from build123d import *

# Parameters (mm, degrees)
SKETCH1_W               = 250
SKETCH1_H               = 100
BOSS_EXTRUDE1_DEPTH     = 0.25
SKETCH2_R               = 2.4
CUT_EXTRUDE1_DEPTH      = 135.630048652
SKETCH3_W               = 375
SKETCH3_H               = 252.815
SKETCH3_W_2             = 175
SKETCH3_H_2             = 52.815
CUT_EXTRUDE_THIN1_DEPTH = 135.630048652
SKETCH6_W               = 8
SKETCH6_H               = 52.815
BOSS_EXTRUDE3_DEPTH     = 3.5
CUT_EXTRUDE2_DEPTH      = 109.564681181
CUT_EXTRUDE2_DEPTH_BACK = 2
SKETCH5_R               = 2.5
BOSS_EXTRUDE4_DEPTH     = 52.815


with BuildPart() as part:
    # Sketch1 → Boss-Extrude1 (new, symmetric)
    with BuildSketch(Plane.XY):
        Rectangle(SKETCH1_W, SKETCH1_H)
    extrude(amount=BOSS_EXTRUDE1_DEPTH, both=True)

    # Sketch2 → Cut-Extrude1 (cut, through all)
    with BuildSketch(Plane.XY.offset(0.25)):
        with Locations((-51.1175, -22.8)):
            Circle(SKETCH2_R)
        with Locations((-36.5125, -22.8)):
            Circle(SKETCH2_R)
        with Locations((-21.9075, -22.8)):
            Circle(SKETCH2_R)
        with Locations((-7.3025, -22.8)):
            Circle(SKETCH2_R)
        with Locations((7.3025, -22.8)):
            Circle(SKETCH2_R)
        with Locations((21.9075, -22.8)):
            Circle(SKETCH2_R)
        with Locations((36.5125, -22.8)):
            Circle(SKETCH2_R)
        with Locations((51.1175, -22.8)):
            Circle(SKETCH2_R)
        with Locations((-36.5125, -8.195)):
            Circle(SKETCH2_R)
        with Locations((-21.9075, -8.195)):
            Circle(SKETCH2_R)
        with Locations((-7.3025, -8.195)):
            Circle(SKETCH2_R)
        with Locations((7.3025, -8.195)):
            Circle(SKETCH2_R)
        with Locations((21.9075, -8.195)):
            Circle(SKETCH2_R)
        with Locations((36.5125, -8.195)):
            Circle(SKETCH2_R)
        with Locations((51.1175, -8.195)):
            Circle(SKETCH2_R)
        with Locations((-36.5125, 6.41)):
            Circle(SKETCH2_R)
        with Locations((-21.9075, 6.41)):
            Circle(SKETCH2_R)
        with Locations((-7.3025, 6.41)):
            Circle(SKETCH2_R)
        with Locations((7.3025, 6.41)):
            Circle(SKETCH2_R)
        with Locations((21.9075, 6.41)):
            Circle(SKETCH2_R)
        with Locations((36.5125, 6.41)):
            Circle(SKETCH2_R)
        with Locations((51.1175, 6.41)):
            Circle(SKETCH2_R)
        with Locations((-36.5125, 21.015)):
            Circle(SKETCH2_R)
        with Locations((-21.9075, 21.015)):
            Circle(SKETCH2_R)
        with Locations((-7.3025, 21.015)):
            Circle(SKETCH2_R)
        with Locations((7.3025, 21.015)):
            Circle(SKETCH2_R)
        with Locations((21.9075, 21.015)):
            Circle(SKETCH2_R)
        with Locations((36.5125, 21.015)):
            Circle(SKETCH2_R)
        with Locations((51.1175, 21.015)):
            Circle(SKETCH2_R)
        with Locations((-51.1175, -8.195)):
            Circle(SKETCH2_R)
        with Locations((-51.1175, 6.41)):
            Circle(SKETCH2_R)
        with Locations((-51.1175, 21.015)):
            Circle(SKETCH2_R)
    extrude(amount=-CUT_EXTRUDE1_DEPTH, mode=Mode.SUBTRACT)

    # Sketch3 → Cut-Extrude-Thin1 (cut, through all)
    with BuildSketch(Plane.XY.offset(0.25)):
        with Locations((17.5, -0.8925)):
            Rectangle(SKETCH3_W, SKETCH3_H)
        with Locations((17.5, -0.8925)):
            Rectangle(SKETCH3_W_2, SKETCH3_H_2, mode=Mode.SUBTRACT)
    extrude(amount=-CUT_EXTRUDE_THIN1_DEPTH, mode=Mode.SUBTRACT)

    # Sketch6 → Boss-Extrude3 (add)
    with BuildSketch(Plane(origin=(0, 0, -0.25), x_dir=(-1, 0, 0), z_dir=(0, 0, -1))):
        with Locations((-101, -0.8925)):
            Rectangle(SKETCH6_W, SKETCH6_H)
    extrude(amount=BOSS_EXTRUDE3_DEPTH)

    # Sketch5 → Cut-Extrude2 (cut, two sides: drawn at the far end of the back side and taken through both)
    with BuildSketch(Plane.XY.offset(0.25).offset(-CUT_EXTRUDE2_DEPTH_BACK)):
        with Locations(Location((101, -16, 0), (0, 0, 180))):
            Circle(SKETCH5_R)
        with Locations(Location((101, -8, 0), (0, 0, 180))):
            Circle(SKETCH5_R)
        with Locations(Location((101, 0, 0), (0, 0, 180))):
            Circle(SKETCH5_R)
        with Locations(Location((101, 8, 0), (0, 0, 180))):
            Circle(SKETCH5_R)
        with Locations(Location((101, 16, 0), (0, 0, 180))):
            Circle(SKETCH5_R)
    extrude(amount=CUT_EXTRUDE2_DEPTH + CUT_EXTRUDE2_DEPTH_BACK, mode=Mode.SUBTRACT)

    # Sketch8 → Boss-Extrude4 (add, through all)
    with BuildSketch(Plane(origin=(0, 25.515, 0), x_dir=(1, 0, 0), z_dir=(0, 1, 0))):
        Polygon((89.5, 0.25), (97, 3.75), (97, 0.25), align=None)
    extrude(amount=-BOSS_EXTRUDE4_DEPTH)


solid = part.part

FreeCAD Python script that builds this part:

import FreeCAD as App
import Part
import Sketcher

V = App.Vector


def add_polygon(sketch, points):
    """Adds a closed chain of lines whose ends are joined by coincident constraints."""
    first, n = sketch.GeometryCount, len(points)
    for a, b in zip(points, points[1:] + points[:1]):
        sketch.addGeometry(Part.LineSegment(App.Vector(*a, 0), App.Vector(*b, 0)), False)
    for i in range(n):
        sketch.addConstraint(Sketcher.Constraint("Coincident", first + i, 2, first + (i + 1) % n, 1))

doc = App.newDocument("Part")
params = doc.addObject("Spreadsheet::Sheet", "Params")
for row, (alias, value) in enumerate([
    ("sketch1_width", "250 mm"),
    ("sketch1_height", "100 mm"),
    ("pad1_length", "0.5 mm"),
    ("sketch2_diameter", "4.8 mm"),
    ("sketch3_width", "375 mm"),
    ("sketch3_width2", "175 mm"),
    ("sketch4_width", "8 mm"),
    ("pad2_length", "3.5 mm"),
    ("sketch5_diameter", "5 mm"),
    ("pocket3_length", "109.564681 mm"),
    ("pocket3_length2", "2 mm"),
    ("sketch6_width", "7.5 mm"),
    ("sketch6_height", "3.5 mm"),
    ("pad3_length", "52.815 mm"),
], start=1):
    params.set(f"A{row}", alias)
    params.set(f"B{row}", "=" + value)
    params.setAlias(f"B{row}", alias)

body = doc.addObject("PartDesign::Body", "Body")

sketch1 = body.newObject("Sketcher::SketchObject", "Sketch")
sketch1.AttachmentSupport = (doc.getObject("XY_Plane"), [""])
sketch1.MapMode = "FlatFace"
add_polygon(sketch1, [(-125, 50), (-125, -50), (125, -50), (125, 50)])
sketch1.addConstraint([
    Sketcher.Constraint("Vertical", 0),
    Sketcher.Constraint("Horizontal", 1),
    Sketcher.Constraint("Vertical", 2),
    Sketcher.Constraint("Horizontal", 3),
    Sketcher.Constraint("Symmetric", 0, 2, 2, 2, -1, 1),
    Sketcher.Constraint("DistanceX", 1, 1, 1, 2, 250.0),
    Sketcher.Constraint("DistanceY", 0, 2, 0, 1, 100.0),
])
sketch1.setExpression("Constraints[9]", "Params.sketch1_width")
sketch1.setExpression("Constraints[10]", "Params.sketch1_height")
pad1 = body.newObject("PartDesign::Pad", "Pad")
pad1.Profile = sketch1
pad1.setExpression("Length", "Params.pad1_length")
pad1.Midplane = True

sketch2 = body.newObject("Sketcher::SketchObject", "Sketch001")
sketch2.AttachmentSupport = (doc.getObject("XY_Plane"), [""])
sketch2.MapMode = "FlatFace"
sketch2.AttachmentOffset = App.Placement(V(0, 0, 0.25), App.Rotation())
sketch2.addGeometry([
    Part.Circle(V(-51.1, -22.8, 0), V(0, 0, 1), 2.4),
    Part.Circle(V(-36.5, -22.8, 0), V(0, 0, 1), 2.4),
    Part.Circle(V(-21.9, -22.8, 0), V(0, 0, 1), 2.4),
    Part.Circle(V(-7.3, -22.8, 0), V(0, 0, 1), 2.4),
    Part.Circle(V(7.3, -22.8, 0), V(0, 0, 1), 2.4),
    Part.Circle(V(21.9, -22.8, 0), V(0, 0, 1), 2.4),
    Part.Circle(V(36.5, -22.8, 0), V(0, 0, 1), 2.4),
    Part.Circle(V(51.1, -22.8, 0), V(0, 0, 1), 2.4),
    Part.Circle(V(-36.5, -8.2, 0), V(0, 0, 1), 2.4),
    Part.Circle(V(-21.9, -8.2, 0), V(0, 0, 1), 2.4),
    Part.Circle(V(-7.3, -8.2, 0), V(0, 0, 1), 2.4),
    Part.Circle(V(7.3, -8.2, 0), V(0, 0, 1), 2.4),
    Part.Circle(V(21.9, -8.2, 0), V(0, 0, 1), 2.4),
    Part.Circle(V(36.5, -8.2, 0), V(0, 0, 1), 2.4),
    Part.Circle(V(51.1, -8.2, 0), V(0, 0, 1), 2.4),
    Part.Circle(V(-36.5, 6.4, 0), V(0, 0, 1), 2.4),
    Part.Circle(V(-21.9, 6.4, 0), V(0, 0, 1), 2.4),
    Part.Circle(V(-7.3, 6.4, 0), V(0, 0, 1), 2.4),
    Part.Circle(V(7.3, 6.4, 0), V(0, 0, 1), 2.4),
    Part.Circle(V(21.9, 6.4, 0), V(0, 0, 1), 2.4),
    Part.Circle(V(36.5, 6.4, 0), V(0, 0, 1), 2.4),
    Part.Circle(V(51.1, 6.4, 0), V(0, 0, 1), 2.4),
    Part.Circle(V(-36.5, 21, 0), V(0, 0, 1), 2.4),
    Part.Circle(V(-21.9, 21, 0), V(0, 0, 1), 2.4),
    Part.Circle(V(-7.3, 21, 0), V(0, 0, 1), 2.4),
    Part.Circle(V(7.3, 21, 0), V(0, 0, 1), 2.4),
    Part.Circle(V(21.9, 21, 0), V(0, 0, 1), 2.4),
    Part.Circle(V(36.5, 21, 0), V(0, 0, 1), 2.4),
    Part.Circle(V(51.1, 21, 0), V(0, 0, 1), 2.4),
    Part.Circle(V(-51.1, -8.2, 0), V(0, 0, 1), 2.4),
    Part.Circle(V(-51.1, 6.4, 0), V(0, 0, 1), 2.4),
    Part.Circle(V(-51.1, 21, 0), V(0, 0, 1), 2.4),
], False)
sketch2.addConstraint([
    Sketcher.Constraint("Equal", 0, 1),
    Sketcher.Constraint("Equal", 1, 2),
    Sketcher.Constraint("Equal", 2, 3),
    Sketcher.Constraint("Equal", 3, 4),
    Sketcher.Constraint("Equal", 4, 5),
    Sketcher.Constraint("Equal", 5, 6),
    Sketcher.Constraint("Equal", 6, 7),
    Sketcher.Constraint("Equal", 7, 8),
    Sketcher.Constraint("Equal", 8, 9),
    Sketcher.Constraint("Equal", 9, 10),
    Sketcher.Constraint("Equal", 10, 11),
    Sketcher.Constraint("Equal", 11, 12),
    Sketcher.Constraint("Equal", 12, 13),
    Sketcher.Constraint("Equal", 13, 14),
    Sketcher.Constraint("Equal", 14, 15),
    Sketcher.Constraint("Equal", 15, 16),
    Sketcher.Constraint("Equal", 16, 17),
    Sketcher.Constraint("Equal", 17, 18),
    Sketcher.Constraint("Equal", 18, 19),
    Sketcher.Constraint("Equal", 19, 20),
    Sketcher.Constraint("Equal", 20, 21),
    Sketcher.Constraint("Equal", 21, 22),
    Sketcher.Constraint("Equal", 22, 23),
    Sketcher.Constraint("Equal", 23, 24),
    Sketcher.Constraint("Equal", 24, 25),
    Sketcher.Constraint("Equal", 25, 26),
    Sketcher.Constraint("Equal", 26, 27),
    Sketcher.Constraint("Equal", 27, 28),
    Sketcher.Constraint("Equal", 28, 29),
    Sketcher.Constraint("Equal", 29, 30),
    Sketcher.Constraint("Equal", 30, 31),
    Sketcher.Constraint("Symmetric", 3, 3, 4, 3, -2),
    Sketcher.Constraint("Symmetric", 2, 3, 5, 3, -2),
    Sketcher.Constraint("Symmetric", 1, 3, 6, 3, -2),
    Sketcher.Constraint("Symmetric", 0, 3, 7, 3, -2),
    Sketcher.Constraint("Symmetric", 10, 3, 11, 3, -2),
    Sketcher.Constraint("Symmetric", 9, 3, 12, 3, -2),
    Sketcher.Constraint("Symmetric", 8, 3, 13, 3, -2),
    Sketcher.Constraint("Symmetric", 17, 3, 18, 3, -2),
    Sketcher.Constraint("Symmetric", 16, 3, 19, 3, -2),
    Sketcher.Constraint("Symmetric", 15, 3, 20, 3, -2),
    Sketcher.Constraint("Symmetric", 24, 3, 25, 3, -2),
    Sketcher.Constraint("Symmetric", 23, 3, 26, 3, -2),
    Sketcher.Constraint("Symmetric", 22, 3, 27, 3, -2),
    Sketcher.Constraint("Symmetric", 14, 3, 29, 3, -2),
    Sketcher.Constraint("Symmetric", 21, 3, 30, 3, -2),
    Sketcher.Constraint("Symmetric", 28, 3, 31, 3, -2),
    Sketcher.Constraint("Horizontal", 0, 3, 1, 3),
    Sketcher.Constraint("Horizontal", 1, 3, 2, 3),
    Sketcher.Constraint("Horizontal", 2, 3, 3, 3),
    Sketcher.Constraint("Horizontal", 8, 3, 9, 3),
    Sketcher.Constraint("Horizontal", 9, 3, 10, 3),
    Sketcher.Constraint("Horizontal", 13, 3, 14, 3),
    Sketcher.Constraint("Horizontal", 15, 3, 16, 3),
    Sketcher.Constraint("Horizontal", 16, 3, 17, 3),
    Sketcher.Constraint("Horizontal", 20, 3, 21, 3),
    Sketcher.Constraint("Horizontal", 22, 3, 23, 3),
    Sketcher.Constraint("Horizontal", 23, 3, 24, 3),
    Sketcher.Constraint("Horizontal", 27, 3, 28, 3),
    Sketcher.Constraint("Vertical", 1, 3, 8, 3),
    Sketcher.Constraint("Vertical", 2, 3, 9, 3),
    Sketcher.Constraint("Vertical", 3, 3, 10, 3),
    Sketcher.Constraint("Vertical", 7, 3, 14, 3),
    Sketcher.Constraint("Vertical", 8, 3, 15, 3),
    Sketcher.Constraint("Vertical", 9, 3, 16, 3),
    Sketcher.Constraint("Vertical", 10, 3, 17, 3),
    Sketcher.Constraint("Vertical", 14, 3, 21, 3),
    Sketcher.Constraint("Vertical", 15, 3, 22, 3),
    Sketcher.Constraint("Vertical", 16, 3, 23, 3),
    Sketcher.Constraint("Vertical", 17, 3, 24, 3),
    Sketcher.Constraint("Vertical", 21, 3, 28, 3),
    Sketcher.Constraint("Diameter", 0, 4.8),
    Sketcher.Constraint("DistanceY", 0, 3, -1, 1, 22.8),
    Sketcher.Constraint("DistanceY", -1, 1, 15, 3, 6.41),
    Sketcher.Constraint("DistanceX", 0, 3, 2, 3, 29.21),
    Sketcher.Constraint("DistanceX", 1, 3, 3, 3, 29.21),
    Sketcher.Constraint("DistanceX", 2, 3, 4, 3, 29.21),
    Sketcher.Constraint("DistanceY", 8, 3, 22, 3, 29.21),
    Sketcher.Constraint("DistanceY", 8, 3, -1, 1, 8.195),
    Sketcher.Constraint("DistanceX", 0, 3, 1, 3, 14.605),
])
sketch2.setExpression("Constraints[71]", "Params.sketch2_diameter")
pocket1 = body.newObject("PartDesign::Pocket", "Pocket")
pocket1.Profile = sketch2
pocket1.Type = "ThroughAll"

sketch3 = body.newObject("Sketcher::SketchObject", "Sketch002")
sketch3.AttachmentSupport = (doc.getObject("XY_Plane"), [""])
sketch3.MapMode = "FlatFace"
sketch3.AttachmentOffset = App.Placement(V(0, 0, 0.25), App.Rotation())
add_polygon(sketch3, [(-170, 126), (-170, -127), (205, -127), (205, 126)])
add_polygon(sketch3, [(105, -27), (-70, -27), (-70, 26), (105, 26)])
sketch3.addConstraint([
    Sketcher.Constraint("Vertical", 0),
    Sketcher.Constraint("Horizontal", 1),
    Sketcher.Constraint("Vertical", 2),
    Sketcher.Constraint("Horizontal", 3),
    Sketcher.Constraint("Horizontal", 4),
    Sketcher.Constraint("Vertical", 5),
    Sketcher.Constraint("Horizontal", 6),
    Sketcher.Constraint("Vertical", 7),
    Sketcher.Constraint("DistanceX", 1, 1, 1, 2, 375.0),
    Sketcher.Constraint("DistanceX", 4, 2, 4, 1, 175.0),
    Sketcher.Constraint("DistanceX", 0, 2, -1, 1, 170.0),
    Sketcher.Constraint("DistanceX", 4, 2, -1, 1, 70.0),
    Sketcher.Constraint("DistanceY", 0, 2, 4, 2, 100.0),
    Sketcher.Constraint("DistanceY", 5, 2, 3, 2, 100.0),
    Sketcher.Constraint("DistanceY", 0, 2, -1, 1, 127.3),
    Sketcher.Constraint("DistanceY", 0, 2, 0, 1, 252.815),
])
sketch3.setExpression("Constraints[16]", "Params.sketch3_width")
sketch3.setExpression("Constraints[17]", "Params.sketch3_width2")
pocket2 = body.newObject("PartDesign::Pocket", "Pocket001")
pocket2.Profile = sketch3
pocket2.Type = "ThroughAll"

sketch4 = body.newObject("Sketcher::SketchObject", "Sketch003")
sketch4.AttachmentSupport = (doc.getObject("XY_Plane"), [""])
sketch4.MapMode = "FlatFace"
sketch4.AttachmentOffset = App.Placement(V(0, 0, -0.25), App.Rotation())
add_polygon(sketch4, [(105, 26), (105, -27), (97, -27), (97, 26)])
sketch4.addConstraint([
    Sketcher.Constraint("Vertical", 0),
    Sketcher.Constraint("Horizontal", 1),
    Sketcher.Constraint("Vertical", 2),
    Sketcher.Constraint("Horizontal", 3),
    Sketcher.Constraint("DistanceX", 1, 2, 1, 1, 8.0),
    Sketcher.Constraint("DistanceX", -1, 1, 0, 2, 105.0),
    Sketcher.Constraint("DistanceY", 0, 2, -1, 1, 27.3),
    Sketcher.Constraint("DistanceY", 0, 2, 0, 1, 52.815),
])
sketch4.setExpression("Constraints[8]", "Params.sketch4_width")
pad2 = body.newObject("PartDesign::Pad", "Pad001")
pad2.Profile = sketch4
pad2.setExpression("Length", "Params.pad2_length")
pad2.Reversed = True

sketch5 = body.newObject("Sketcher::SketchObject", "Sketch004")
sketch5.AttachmentSupport = (doc.getObject("XY_Plane"), [""])
sketch5.MapMode = "FlatFace"
sketch5.AttachmentOffset = App.Placement(V(0, 0, 0.25), App.Rotation())
sketch5.addGeometry([
    Part.Circle(V(101, -16, 0), V(0, 0, 1), 2.5),
    Part.Circle(V(101, -8, 0), V(0, 0, 1), 2.5),
    Part.Circle(V(101, 0, 0), V(0, 0, 1), 2.5),
    Part.Circle(V(101, 8, 0), V(0, 0, 1), 2.5),
    Part.Circle(V(101, 16, 0), V(0, 0, 1), 2.5),
], False)
sketch5.addConstraint([
    Sketcher.Constraint("Equal", 0, 1),
    Sketcher.Constraint("Equal", 1, 2),
    Sketcher.Constraint("Equal", 2, 3),
    Sketcher.Constraint("Equal", 3, 4),
    Sketcher.Constraint("Symmetric", 1, 3, 3, 3, -1),
    Sketcher.Constraint("Symmetric", 0, 3, 4, 3, -1),
    Sketcher.Constraint("PointOnObject", 2, 3, -1),
    Sketcher.Constraint("Vertical", 0, 3, 1, 3),
    Sketcher.Constraint("Vertical", 1, 3, 2, 3),
    Sketcher.Constraint("Diameter", 0, 5.0),
    Sketcher.Constraint("DistanceX", -1, 1, 0, 3, 101.0),
    Sketcher.Constraint("DistanceY", 0, 3, -1, 1, 16.0),
    Sketcher.Constraint("DistanceY", 1, 3, -1, 1, 8.0),
])
sketch5.setExpression("Constraints[9]", "Params.sketch5_diameter")
pocket3 = body.newObject("PartDesign::Pocket", "Pocket002")
pocket3.Profile = sketch5
pocket3.Type = "TwoLengths"
pocket3.setExpression("Length", "Params.pocket3_length")
pocket3.setExpression("Length2", "Params.pocket3_length2")
pocket3.Reversed = True

sketch6 = body.newObject("Sketcher::SketchObject", "Sketch005")
sketch6.AttachmentSupport = (doc.getObject("XZ_Plane"), [""])
sketch6.MapMode = "FlatFace"
sketch6.AttachmentOffset = App.Placement(V(0, 0, -25.515), App.Rotation())
add_polygon(sketch6, [(97, -3.8), (89.5, -0.2), (97, -0.2)])
sketch6.addConstraint([
    Sketcher.Constraint("Horizontal", 1),
    Sketcher.Constraint("Vertical", 2),
    Sketcher.Constraint("DistanceX", 1, 1, 1, 2, 7.5),
    Sketcher.Constraint("DistanceY", 2, 2, 2, 1, 3.5),
    Sketcher.Constraint("DistanceX", -1, 1, 1, 2, 97.0),
    Sketcher.Constraint("DistanceY", 0, 2, -1, 1, 0.25),
])
sketch6.setExpression("Constraints[5]", "Params.sketch6_width")
sketch6.setExpression("Constraints[6]", "Params.sketch6_height")
pad3 = body.newObject("PartDesign::Pad", "Pad002")
pad3.Profile = sketch6
pad3.setExpression("Length", "Params.pad3_length")

doc.recompute()
